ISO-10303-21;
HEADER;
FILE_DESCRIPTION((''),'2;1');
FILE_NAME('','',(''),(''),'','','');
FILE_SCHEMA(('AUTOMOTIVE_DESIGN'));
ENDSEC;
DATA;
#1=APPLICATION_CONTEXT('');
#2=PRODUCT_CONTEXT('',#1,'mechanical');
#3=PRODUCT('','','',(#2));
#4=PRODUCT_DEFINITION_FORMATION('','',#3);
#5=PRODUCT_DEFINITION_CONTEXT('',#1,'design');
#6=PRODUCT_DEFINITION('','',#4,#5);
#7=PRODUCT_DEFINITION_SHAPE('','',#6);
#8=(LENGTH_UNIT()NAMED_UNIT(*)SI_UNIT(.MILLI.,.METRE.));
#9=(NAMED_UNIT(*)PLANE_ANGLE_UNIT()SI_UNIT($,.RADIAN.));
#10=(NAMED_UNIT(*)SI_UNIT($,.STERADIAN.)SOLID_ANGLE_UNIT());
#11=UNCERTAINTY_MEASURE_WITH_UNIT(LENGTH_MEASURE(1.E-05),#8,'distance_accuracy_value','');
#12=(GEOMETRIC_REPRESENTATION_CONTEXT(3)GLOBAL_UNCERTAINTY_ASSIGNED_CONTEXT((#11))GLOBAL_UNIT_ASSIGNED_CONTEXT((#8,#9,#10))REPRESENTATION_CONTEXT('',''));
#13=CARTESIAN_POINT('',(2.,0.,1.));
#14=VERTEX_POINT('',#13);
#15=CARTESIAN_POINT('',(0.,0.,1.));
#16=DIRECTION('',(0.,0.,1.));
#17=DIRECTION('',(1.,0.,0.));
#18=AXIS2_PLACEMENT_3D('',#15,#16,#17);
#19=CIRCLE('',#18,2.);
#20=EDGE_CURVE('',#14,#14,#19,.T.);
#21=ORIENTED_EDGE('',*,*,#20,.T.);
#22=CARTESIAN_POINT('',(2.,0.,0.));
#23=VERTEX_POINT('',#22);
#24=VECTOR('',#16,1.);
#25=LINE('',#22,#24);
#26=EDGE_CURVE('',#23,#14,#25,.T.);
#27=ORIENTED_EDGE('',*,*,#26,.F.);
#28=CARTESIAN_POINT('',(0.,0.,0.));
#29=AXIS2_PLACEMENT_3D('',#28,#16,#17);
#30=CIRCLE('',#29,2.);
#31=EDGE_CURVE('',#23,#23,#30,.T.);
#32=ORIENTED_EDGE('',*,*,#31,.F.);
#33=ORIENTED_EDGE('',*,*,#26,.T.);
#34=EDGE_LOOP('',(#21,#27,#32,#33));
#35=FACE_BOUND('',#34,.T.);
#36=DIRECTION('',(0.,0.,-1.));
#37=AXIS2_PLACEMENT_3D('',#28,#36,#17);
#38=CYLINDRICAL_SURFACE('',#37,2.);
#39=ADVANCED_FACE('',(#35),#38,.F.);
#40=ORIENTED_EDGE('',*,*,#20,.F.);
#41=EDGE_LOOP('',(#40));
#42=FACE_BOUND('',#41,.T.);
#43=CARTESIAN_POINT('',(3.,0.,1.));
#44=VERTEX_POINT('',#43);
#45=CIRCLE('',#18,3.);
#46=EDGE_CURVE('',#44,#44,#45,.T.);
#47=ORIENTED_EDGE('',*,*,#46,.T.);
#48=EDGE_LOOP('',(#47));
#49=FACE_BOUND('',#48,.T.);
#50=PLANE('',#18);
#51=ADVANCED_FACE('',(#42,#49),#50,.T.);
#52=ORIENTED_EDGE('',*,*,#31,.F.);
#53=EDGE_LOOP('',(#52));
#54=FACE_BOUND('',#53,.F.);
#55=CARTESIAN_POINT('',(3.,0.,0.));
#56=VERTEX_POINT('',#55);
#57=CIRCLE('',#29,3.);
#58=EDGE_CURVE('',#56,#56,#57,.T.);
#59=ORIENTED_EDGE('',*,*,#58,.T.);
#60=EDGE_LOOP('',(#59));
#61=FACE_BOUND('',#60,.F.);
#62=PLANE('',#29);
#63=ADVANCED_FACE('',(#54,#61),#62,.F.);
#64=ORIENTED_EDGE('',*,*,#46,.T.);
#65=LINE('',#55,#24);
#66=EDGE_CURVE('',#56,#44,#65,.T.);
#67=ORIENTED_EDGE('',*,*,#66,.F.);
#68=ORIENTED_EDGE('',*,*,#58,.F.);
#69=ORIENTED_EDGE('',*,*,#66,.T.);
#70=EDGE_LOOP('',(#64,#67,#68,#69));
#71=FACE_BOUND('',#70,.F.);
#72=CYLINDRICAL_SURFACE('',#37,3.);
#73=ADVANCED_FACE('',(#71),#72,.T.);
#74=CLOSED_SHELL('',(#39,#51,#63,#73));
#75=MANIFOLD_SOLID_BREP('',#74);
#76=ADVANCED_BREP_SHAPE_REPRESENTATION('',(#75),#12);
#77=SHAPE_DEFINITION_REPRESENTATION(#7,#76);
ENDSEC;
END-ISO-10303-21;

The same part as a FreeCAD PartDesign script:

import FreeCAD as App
import Part
import Sketcher

V = App.Vector

doc = App.newDocument("Part")
params = doc.addObject("Spreadsheet::Sheet", "Params")
for row, (alias, value) in enumerate([
    ("sketch1_diameter", "6 mm"),
    ("sketch1_diameter2", "4 mm"),
    ("pad1_length", "1 mm"),
], start=1):
    params.set(f"A{row}", alias)
    params.set(f"B{row}", "=" + value)
    params.setAlias(f"B{row}", alias)

body = doc.addObject("PartDesign::Body", "Body")

sketch1 = body.newObject("Sketcher::SketchObject", "Sketch")
sketch1.AttachmentSupport = (doc.getObject("XY_Plane"), [""])
sketch1.MapMode = "FlatFace"
sketch1.addGeometry(Part.Circle(V(0, 0, 0), V(0, 0, 1), 3), False)
sketch1.addGeometry(Part.Circle(V(0, 0, 0), V(0, 0, 1), 2), False)
sketch1.addConstraint(Sketcher.Constraint("Coincident", 0, 3, -1, 1))
sketch1.addConstraint(Sketcher.Constraint("Coincident", 1, 3, -1, 1))
sketch1.addConstraint(Sketcher.Constraint("Diameter", 0, 6.0))
sketch1.addConstraint(Sketcher.Constraint("Diameter", 1, 4.0))
sketch1.setExpression("Constraints[2]", "Params.sketch1_diameter")
sketch1.setExpression("Constraints[3]", "Params.sketch1_diameter2")
pad1 = body.newObject("PartDesign::Pad", "Pad")
pad1.Profile = sketch1
pad1.setExpression("Length", "Params.pad1_length")

doc.recompute()
